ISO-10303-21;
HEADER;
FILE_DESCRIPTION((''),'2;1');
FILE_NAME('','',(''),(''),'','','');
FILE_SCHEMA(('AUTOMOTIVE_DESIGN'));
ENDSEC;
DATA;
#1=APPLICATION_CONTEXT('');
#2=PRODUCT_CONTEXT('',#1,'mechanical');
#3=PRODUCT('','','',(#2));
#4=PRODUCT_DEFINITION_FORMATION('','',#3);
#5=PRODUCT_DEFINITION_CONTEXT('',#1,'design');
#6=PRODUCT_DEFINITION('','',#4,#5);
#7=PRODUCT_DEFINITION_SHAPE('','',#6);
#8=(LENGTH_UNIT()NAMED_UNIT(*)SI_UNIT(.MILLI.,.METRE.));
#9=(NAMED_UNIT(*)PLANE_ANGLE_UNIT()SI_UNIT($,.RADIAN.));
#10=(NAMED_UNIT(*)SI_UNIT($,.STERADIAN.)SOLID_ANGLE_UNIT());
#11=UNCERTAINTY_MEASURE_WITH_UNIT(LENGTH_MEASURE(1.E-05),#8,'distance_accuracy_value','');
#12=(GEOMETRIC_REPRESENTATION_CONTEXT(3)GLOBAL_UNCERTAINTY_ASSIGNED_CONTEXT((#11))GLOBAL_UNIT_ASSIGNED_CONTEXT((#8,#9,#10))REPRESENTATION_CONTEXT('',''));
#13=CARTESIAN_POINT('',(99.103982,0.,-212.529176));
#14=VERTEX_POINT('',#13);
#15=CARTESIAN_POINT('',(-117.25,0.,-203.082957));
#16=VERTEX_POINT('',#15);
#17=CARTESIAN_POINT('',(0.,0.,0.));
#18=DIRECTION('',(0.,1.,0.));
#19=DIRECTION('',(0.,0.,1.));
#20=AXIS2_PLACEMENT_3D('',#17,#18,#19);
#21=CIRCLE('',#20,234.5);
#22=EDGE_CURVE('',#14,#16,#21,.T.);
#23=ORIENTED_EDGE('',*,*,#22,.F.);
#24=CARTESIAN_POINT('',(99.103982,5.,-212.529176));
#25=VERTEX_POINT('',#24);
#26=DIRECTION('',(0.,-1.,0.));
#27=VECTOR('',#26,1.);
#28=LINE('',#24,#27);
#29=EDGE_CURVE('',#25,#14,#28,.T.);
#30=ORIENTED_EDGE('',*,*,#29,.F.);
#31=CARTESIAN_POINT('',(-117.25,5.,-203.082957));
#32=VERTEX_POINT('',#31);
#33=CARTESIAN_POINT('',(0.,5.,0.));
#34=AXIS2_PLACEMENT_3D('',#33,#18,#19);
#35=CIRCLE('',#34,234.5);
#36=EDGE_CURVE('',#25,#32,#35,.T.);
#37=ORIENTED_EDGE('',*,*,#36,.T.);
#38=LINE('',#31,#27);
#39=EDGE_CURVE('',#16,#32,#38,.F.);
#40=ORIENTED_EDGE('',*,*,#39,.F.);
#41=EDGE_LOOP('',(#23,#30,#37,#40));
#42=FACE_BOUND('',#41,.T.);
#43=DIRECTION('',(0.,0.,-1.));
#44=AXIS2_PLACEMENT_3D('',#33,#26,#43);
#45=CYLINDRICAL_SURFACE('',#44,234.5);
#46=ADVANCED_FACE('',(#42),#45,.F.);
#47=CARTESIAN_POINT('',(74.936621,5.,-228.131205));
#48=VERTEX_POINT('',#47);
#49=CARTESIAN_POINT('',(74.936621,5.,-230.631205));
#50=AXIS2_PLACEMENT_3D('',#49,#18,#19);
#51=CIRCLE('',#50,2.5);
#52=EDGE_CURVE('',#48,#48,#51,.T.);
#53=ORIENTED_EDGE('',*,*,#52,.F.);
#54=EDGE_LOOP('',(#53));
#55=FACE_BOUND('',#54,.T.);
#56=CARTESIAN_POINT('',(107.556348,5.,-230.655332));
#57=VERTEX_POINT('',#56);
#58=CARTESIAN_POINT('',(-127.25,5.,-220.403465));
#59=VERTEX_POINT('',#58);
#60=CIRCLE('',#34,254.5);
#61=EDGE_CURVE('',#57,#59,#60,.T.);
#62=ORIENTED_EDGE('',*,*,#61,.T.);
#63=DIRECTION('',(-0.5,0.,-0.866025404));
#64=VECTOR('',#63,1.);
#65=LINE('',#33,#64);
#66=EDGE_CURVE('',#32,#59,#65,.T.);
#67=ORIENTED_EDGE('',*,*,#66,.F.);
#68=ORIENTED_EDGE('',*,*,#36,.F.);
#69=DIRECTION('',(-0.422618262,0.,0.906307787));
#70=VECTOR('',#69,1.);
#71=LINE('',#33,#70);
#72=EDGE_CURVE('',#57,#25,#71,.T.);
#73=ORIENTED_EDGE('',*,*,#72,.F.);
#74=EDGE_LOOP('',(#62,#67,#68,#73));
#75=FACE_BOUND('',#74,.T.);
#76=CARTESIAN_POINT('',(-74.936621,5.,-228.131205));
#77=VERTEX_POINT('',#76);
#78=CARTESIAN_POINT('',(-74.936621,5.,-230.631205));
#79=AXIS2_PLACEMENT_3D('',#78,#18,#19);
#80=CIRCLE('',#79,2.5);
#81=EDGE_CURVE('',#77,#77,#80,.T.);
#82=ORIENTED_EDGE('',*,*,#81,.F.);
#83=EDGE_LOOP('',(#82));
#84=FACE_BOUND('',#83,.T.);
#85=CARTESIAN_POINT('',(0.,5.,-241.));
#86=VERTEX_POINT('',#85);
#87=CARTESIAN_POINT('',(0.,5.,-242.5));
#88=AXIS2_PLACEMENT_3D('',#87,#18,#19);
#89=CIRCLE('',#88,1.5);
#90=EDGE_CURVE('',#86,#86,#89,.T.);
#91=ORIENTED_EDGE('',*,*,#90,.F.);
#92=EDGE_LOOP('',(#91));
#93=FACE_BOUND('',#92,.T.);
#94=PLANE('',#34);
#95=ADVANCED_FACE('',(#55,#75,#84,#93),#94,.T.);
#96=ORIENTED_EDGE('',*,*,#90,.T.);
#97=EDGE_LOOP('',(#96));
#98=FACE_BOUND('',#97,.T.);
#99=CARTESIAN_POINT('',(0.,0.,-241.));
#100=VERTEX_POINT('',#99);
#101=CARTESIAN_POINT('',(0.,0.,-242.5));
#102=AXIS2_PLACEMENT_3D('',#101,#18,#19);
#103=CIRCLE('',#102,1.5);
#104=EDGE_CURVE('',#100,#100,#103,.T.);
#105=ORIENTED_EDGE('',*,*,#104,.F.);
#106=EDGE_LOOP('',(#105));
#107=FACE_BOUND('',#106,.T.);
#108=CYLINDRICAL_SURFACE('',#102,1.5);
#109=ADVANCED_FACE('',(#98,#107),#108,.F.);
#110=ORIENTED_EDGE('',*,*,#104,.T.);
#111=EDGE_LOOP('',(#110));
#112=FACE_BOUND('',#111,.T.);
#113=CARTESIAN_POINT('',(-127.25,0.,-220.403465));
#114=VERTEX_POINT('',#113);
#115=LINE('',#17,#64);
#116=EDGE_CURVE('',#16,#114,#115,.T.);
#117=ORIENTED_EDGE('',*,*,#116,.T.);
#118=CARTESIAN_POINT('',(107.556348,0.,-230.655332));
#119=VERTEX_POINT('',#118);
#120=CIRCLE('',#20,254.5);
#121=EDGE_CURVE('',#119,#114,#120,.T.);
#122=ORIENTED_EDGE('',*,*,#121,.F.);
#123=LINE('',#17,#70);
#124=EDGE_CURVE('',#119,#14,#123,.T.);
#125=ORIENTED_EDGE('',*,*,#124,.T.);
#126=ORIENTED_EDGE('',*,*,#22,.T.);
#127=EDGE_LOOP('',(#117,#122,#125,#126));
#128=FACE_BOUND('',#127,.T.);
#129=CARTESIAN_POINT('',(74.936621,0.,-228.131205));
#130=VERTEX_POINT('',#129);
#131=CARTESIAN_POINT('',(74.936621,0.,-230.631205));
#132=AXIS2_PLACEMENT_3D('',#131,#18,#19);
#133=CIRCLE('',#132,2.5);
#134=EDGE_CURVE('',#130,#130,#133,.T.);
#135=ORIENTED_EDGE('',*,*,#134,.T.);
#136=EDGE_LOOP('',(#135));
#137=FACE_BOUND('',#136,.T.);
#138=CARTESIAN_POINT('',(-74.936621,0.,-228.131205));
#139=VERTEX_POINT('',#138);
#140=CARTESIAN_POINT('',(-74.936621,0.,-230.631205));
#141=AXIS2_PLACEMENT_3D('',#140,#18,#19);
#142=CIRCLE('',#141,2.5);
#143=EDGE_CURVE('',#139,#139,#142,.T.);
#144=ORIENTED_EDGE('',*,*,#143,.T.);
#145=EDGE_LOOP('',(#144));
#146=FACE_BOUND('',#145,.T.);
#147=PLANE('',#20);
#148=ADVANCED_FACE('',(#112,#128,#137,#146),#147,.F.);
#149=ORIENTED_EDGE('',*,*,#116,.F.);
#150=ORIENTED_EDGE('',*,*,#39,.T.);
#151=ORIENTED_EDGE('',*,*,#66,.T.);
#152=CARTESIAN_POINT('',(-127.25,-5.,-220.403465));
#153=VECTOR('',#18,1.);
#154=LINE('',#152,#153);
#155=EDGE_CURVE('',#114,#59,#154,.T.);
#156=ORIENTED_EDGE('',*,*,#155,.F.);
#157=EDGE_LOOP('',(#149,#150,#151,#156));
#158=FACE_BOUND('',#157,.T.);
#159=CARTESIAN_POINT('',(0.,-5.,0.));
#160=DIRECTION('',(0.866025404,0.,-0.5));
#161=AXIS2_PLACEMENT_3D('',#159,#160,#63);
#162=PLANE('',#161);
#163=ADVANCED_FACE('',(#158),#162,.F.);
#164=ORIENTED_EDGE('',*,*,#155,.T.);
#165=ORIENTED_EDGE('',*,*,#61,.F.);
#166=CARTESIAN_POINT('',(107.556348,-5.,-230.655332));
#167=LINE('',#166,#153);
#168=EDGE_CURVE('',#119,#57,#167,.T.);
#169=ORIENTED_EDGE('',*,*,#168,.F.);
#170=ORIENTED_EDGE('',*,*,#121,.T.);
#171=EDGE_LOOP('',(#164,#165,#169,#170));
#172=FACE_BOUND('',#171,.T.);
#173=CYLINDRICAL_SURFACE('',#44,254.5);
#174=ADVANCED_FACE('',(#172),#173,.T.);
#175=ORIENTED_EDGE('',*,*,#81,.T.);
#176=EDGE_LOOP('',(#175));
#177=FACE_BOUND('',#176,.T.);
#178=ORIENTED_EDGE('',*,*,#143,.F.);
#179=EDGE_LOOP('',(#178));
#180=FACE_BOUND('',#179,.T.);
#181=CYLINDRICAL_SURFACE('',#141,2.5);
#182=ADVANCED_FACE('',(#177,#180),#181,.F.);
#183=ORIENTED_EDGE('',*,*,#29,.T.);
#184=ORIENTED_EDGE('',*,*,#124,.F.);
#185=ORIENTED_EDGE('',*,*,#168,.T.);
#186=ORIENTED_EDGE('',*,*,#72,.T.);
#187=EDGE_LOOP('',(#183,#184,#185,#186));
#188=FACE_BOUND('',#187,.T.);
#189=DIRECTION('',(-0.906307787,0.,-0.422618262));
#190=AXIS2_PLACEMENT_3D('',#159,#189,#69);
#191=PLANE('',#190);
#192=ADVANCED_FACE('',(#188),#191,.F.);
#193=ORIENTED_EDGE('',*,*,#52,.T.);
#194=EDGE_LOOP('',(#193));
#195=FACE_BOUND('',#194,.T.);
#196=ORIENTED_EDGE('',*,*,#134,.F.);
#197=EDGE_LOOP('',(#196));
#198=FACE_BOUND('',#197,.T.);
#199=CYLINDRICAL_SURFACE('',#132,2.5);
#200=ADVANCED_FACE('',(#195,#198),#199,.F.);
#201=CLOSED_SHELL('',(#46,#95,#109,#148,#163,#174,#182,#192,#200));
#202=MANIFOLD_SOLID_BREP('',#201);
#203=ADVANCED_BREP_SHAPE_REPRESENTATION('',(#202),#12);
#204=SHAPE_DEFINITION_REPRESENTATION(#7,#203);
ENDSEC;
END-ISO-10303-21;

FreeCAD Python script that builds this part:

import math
import FreeCAD as App
import Part
import Sketcher
Q = App.Units.Quantity


def add_polygon(sketch, points):
    """Adds a closed chain of lines whose ends are joined by coincident constraints."""
    first, n = sketch.GeometryCount, len(points)
    for a, b in zip(points, points[1:] + points[:1]):
        sketch.addGeometry(Part.LineSegment(App.Vector(*a, 0), App.Vector(*b, 0)), False)
    for i in range(n):
        sketch.addConstraint(Sketcher.Constraint("Coincident", first + i, 2, first + (i + 1) % n, 1))

doc = App.newDocument("Part")
body = doc.addObject("PartDesign::Body", "Body")

sketch1 = doc.addObject("Sketcher::SketchObject", "Sketch")
body.addObject(sketch1)
sketch1.AttachmentSupport = (doc.XZ_Plane, [""])
sketch1.MapMode = "FlatFace"
sketch1.addGeometry([
    Part.Circle(App.Vector(0, 0, 0), App.Vector(0, 0, 1), 254.5),
    Part.Circle(App.Vector(0, 0, 0), App.Vector(0, 0, 1), 234.5),
], False)
sketch1.addConstraint([
    Sketcher.Constraint("Coincident", 0, 3, -1, 1),
    Sketcher.Constraint("Coincident", 1, 3, -1, 1),
    Sketcher.Constraint("Diameter", 0, Q("509 mm")),
    Sketcher.Constraint("Diameter", 1, Q("469 mm")),
])
pad1 = doc.addObject("PartDesign::Pad", "Pad")
body.addObject(pad1)
pad1.Profile = sketch1
pad1.Length = 5
pad1.Reversed = True

sketch2 = doc.addObject("Sketcher::SketchObject", "Sketch001")
body.addObject(sketch2)
sketch2.AttachmentSupport = (doc.XZ_Plane, [""])
sketch2.MapMode = "FlatFace"
sketch2.AttachmentOffset = App.Placement(App.Vector(0, 0, -5), App.Rotation())
add_polygon(sketch2, [(-254.5, -60), (-254.5, 0), (-226.694177, 0), (-226.694177, -60)])
sketch2.addConstraint([
    Sketcher.Constraint("Vertical", 0),
    Sketcher.Constraint("Horizontal", 1),
    Sketcher.Constraint("Vertical", 2),
    Sketcher.Constraint("Horizontal", 3),
    Sketcher.Constraint("PointOnObject", 0, 2, -1),
    Sketcher.Constraint("DistanceY", 0, 1, 0, 2, Q("60 mm")),
    Sketcher.Constraint("DistanceX", 0, 2, -1, 1, Q("254.5 mm")),
    Sketcher.Constraint("DistanceX", 1, 1, 1, 2, Q("27.805823 mm")),
])
pocket1 = doc.addObject("PartDesign::Pocket", "Pocket")
body.addObject(pocket1)
pocket1.Profile = sketch2
pocket1.Length = 5
pocket1.Reversed = True
doc.recompute()

mirrored = doc.addObject("PartDesign::Mirrored", "Mirrored")
body.addObject(mirrored)
mirrored.Originals = [pocket1]
mirrored.MirrorPlane = (doc.XY_Plane, [""])
body.Tip = mirrored

sketch3 = doc.addObject("Sketcher::SketchObject", "Sketch002")
body.addObject(sketch3)
sketch3.AttachmentSupport = (doc.XZ_Plane, [""])
sketch3.MapMode = "FlatFace"
sketch3.AttachmentOffset = App.Placement(App.Vector(0, 0, -5), App.Rotation())
sketch3.addGeometry([
    Part.Circle(App.Vector(242.5, 0, 0), App.Vector(0, 0, 1), 2.5),
    Part.Circle(App.Vector(196.186621, 142.537924, 0), App.Vector(0, 0, 1), 2.5),
    Part.Circle(App.Vector(74.936621, 230.631205, 0), App.Vector(0, 0, 1), 2.5),
    Part.Circle(App.Vector(-74.936621, 230.631205, 0), App.Vector(0, 0, 1), 2.5),
    Part.Circle(App.Vector(-196.186621, 142.537924, 0), App.Vector(0, 0, 1), 2.5),
    Part.Circle(App.Vector(-242.5, 0, 0), App.Vector(0, 0, 1), 2.5),
    Part.Circle(App.Vector(-196.186621, -142.537924, 0), App.Vector(0, 0, 1), 2.5),
    Part.Circle(App.Vector(-74.936621, -230.631205, 0), App.Vector(0, 0, 1), 2.5),
    Part.Circle(App.Vector(74.936621, -230.631205, 0), App.Vector(0, 0, 1), 2.5),
    Part.Circle(App.Vector(196.186621, -142.537924, 0), App.Vector(0, 0, 1), 2.5),
], False)
sketch3.addConstraint([
    Sketcher.Constraint("Equal", 0, 1),
    Sketcher.Constraint("Equal", 1, 2),
    Sketcher.Constraint("Equal", 2, 3),
    Sketcher.Constraint("Equal", 3, 4),
    Sketcher.Constraint("Equal", 4, 5),
    Sketcher.Constraint("Equal", 5, 6),
    Sketcher.Constraint("Equal", 6, 7),
    Sketcher.Constraint("Equal", 7, 8),
    Sketcher.Constraint("Equal", 8, 9),
    Sketcher.Constraint("Symmetric", 0, 3, 5, 3, -1, 1),
    Sketcher.Constraint("Symmetric", 1, 3, 6, 3, -1, 1),
    Sketcher.Constraint("Symmetric", 2, 3, 7, 3, -1, 1),
    Sketcher.Constraint("Symmetric", 3, 3, 8, 3, -1, 1),
    Sketcher.Constraint("Symmetric", 4, 3, 9, 3, -1, 1),
    Sketcher.Constraint("Symmetric", 2, 3, 3, 3, -2),
    Sketcher.Constraint("Symmetric", 1, 3, 4, 3, -2),
    Sketcher.Constraint("PointOnObject", 0, 3, -1),
    Sketcher.Constraint("Diameter", 0, Q("5 mm")),
    Sketcher.Constraint("DistanceX", 5, 3, 0, 3, Q("485 mm")),
    Sketcher.Constraint("DistanceX", 2, 3, 1, 3, Q("121.25 mm")),
    Sketcher.Constraint("DistanceX", -1, 1, 1, 3, Q("196.186621 mm")),
    Sketcher.Constraint("DistanceY", 1, 3, 2, 3, Q("88.093282 mm")),
    Sketcher.Constraint("DistanceY", 6, 3, 3, 3, Q("373.169129 mm")),
])
pocket2 = doc.addObject("PartDesign::Pocket", "Pocket001")
body.addObject(pocket2)
pocket2.Profile = sketch3
pocket2.Length = 5
pocket2.Reversed = True

sketch4 = doc.addObject("Sketcher::SketchObject", "Sketch003")
body.addObject(sketch4)
sketch4.AttachmentSupport = (doc.XZ_Plane, [""])
sketch4.MapMode = "FlatFace"
sketch4.AttachmentOffset = App.Placement(App.Vector(0, 0, -5), App.Rotation())
sketch4.addGeometry([
    Part.Circle(App.Vector(0, 242.5, 0), App.Vector(0, 0, 1), 1.5),
    Part.Circle(App.Vector(-142.537924, 196.186621, 0), App.Vector(0, 0, 1), 1.5),
    Part.Circle(App.Vector(-230.631205, 74.936621, 0), App.Vector(0, 0, 1), 1.5),
    Part.Circle(App.Vector(-230.631205, -74.936621, 0), App.Vector(0, 0, 1), 1.5),
    Part.Circle(App.Vector(-142.537924, -196.186621, 0), App.Vector(0, 0, 1), 1.5),
    Part.Circle(App.Vector(0, -242.5, 0), App.Vector(0, 0, 1), 1.5),
    Part.Circle(App.Vector(142.537924, -196.186621, 0), App.Vector(0, 0, 1), 1.5),
    Part.Circle(App.Vector(230.631205, -74.936621, 0), App.Vector(0, 0, 1), 1.5),
    Part.Circle(App.Vector(230.631205, 74.936621, 0), App.Vector(0, 0, 1), 1.5),
    Part.Circle(App.Vector(142.537924, 196.186621, 0), App.Vector(0, 0, 1), 1.5),
], False)
sketch4.addConstraint([
    Sketcher.Constraint("Equal", 0, 1),
    Sketcher.Constraint("Equal", 1, 2),
    Sketcher.Constraint("Equal", 2, 3),
    Sketcher.Constraint("Equal", 3, 4),
    Sketcher.Constraint("Equal", 4, 5),
    Sketcher.Constraint("Equal", 5, 6),
    Sketcher.Constraint("Equal", 6, 7),
    Sketcher.Constraint("Equal", 7, 8),
    Sketcher.Constraint("Equal", 8, 9),
    Sketcher.Constraint("Symmetric", 0, 3, 5, 3, -1, 1),
    Sketcher.Constraint("Symmetric", 1, 3, 6, 3, -1, 1),
    Sketcher.Constraint("Symmetric", 2, 3, 7, 3, -1, 1),
    Sketcher.Constraint("Symmetric", 3, 3, 8, 3, -1, 1),
    Sketcher.Constraint("Symmetric", 4, 3, 9, 3, -1, 1),
    Sketcher.Constraint("Symmetric", 4, 3, 6, 3, -2),
    Sketcher.Constraint("Symmetric", 3, 3, 7, 3, -2),
    Sketcher.Constraint("PointOnObject", 0, 3, -2),
    Sketcher.Constraint("Diameter", 0, Q("3 mm")),
    Sketcher.Constraint("DistanceY", 5, 3, 0, 3, Q("485 mm")),
    Sketcher.Constraint("DistanceY", 2, 3, 1, 3, Q("121.25 mm")),
    Sketcher.Constraint("DistanceY", -1, 1, 1, 3, Q("196.186621 mm")),
    Sketcher.Constraint("DistanceX", 2, 3, 1, 3, Q("88.093282 mm")),
    Sketcher.Constraint("DistanceX", 3, 3, 6, 3, Q("373.169129 mm")),
])
pocket3 = doc.addObject("PartDesign::Pocket", "Pocket002")
body.addObject(pocket3)
pocket3.Profile = sketch4
pocket3.Length = 5
pocket3.Reversed = True

sketch5 = doc.addObject("Sketcher::SketchObject", "Sketch004")
body.addObject(sketch5)
sketch5.AttachmentSupport = (doc.XZ_Plane, [""])
sketch5.MapMode = "FlatFace"
sketch5.AttachmentOffset = App.Placement(App.Vector(0, 0, -5), App.Rotation())
add_polygon(sketch5, [(-396.71262, 0), (-396.71262, 357.226439), (254.5, 357.226439), (254.5, 0)])
sketch5.addConstraint([
    Sketcher.Constraint("Vertical", 0),
    Sketcher.Constraint("Horizontal", 1),
    Sketcher.Constraint("Vertical", 2),
    Sketcher.Constraint("Horizontal", 3),
    Sketcher.Constraint("PointOnObject", 2, 2, -1),
    Sketcher.Constraint("DistanceX", -1, 1, 1, 2, Q("254.5 mm")),
    Sketcher.Constraint("DistanceX", 1, 1, 1, 2, Q("651.21262 mm")),
    Sketcher.Constraint("DistanceY", 0, 1, 0, 2, Q("357.226439 mm")),
])
pocket4 = doc.addObject("PartDesign::Pocket", "Pocket003")
body.addObject(pocket4)
pocket4.Profile = sketch5
pocket4.Length = 10
pocket4.Reversed = True

sketch6 = doc.addObject("Sketcher::SketchObject", "Sketch005")
body.addObject(sketch6)
sketch6.AttachmentSupport = (doc.XZ_Plane, [""])
sketch6.MapMode = "FlatFace"
sketch6.AttachmentOffset = App.Placement(App.Vector(0, 0, 5), App.Rotation())
sketch6.addGeometry([
    Part.LineSegment(App.Vector(-117.25, -203.082957, 0), App.Vector(-127.25, -220.403465, 0)),
    Part.ArcOfCircle(Part.Circle(App.Vector(0, 0, 0), App.Vector(0, 0, 1), 254.5), math.radians(-166.363787), math.radians(-120)),
    Part.ArcOfCircle(Part.Circle(App.Vector(0, 0, 0), App.Vector(0, 0, 1), 254.5), math.radians(-180), math.radians(-166.363787)),
    Part.LineSegment(App.Vector(-254.5, 0, 0), App.Vector(0, 0, 0)),
    Part.LineSegment(App.Vector(0, 0, 0), App.Vector(-117.25, -203.082957, 0)),
    Part.Circle(App.Vector(-230.631205, -74.936621, 0), App.Vector(0, 0, 1), 1.5),
    Part.Circle(App.Vector(-196.186621, -142.537924, 0), App.Vector(0, 0, 1), 2.5),
    Part.Circle(App.Vector(-142.537924, -196.186621, 0), App.Vector(0, 0, 1), 1.5),
], False)
sketch6.addConstraint([
    Sketcher.Constraint("Coincident", 0, 2, 1, 2),
    Sketcher.Constraint("Tangent", 1, 1, 2, 2),
    Sketcher.Constraint("Coincident", 2, 1, 3, 1),
    Sketcher.Constraint("Coincident", 3, 2, 4, 1),
    Sketcher.Constraint("Coincident", 4, 2, 0, 1),
    Sketcher.Constraint("Horizontal", 3),
    Sketcher.Constraint("Coincident", 1, 3, -1, 1),
    Sketcher.Constraint("Coincident", 3, 2, -1, 1),
    Sketcher.Constraint("Equal", 1, 2),
    Sketcher.Constraint("Equal", 5, 7),
    Sketcher.Constraint("Parallel", 0, 4),
    Sketcher.Constraint("Diameter", 5, Q("3 mm")),
    Sketcher.Constraint("Diameter", 6, Q("5 mm")),
    Sketcher.Constraint("Radius", 1, Q("254.5 mm")),
    Sketcher.Constraint("Angle", 0, Q("-120 deg")),
    Sketcher.Constraint("Distance", 0, Q("20 mm")),
    Sketcher.Constraint("DistanceY", 1, 1, -1, 1, Q("60 mm")),
    Sketcher.Constraint("DistanceY", 7, 3, 5, 3, Q("121.25 mm")),
    Sketcher.Constraint("DistanceY", 5, 3, -1, 1, Q("74.936621 mm")),
    Sketcher.Constraint("DistanceX", 6, 3, -1, 1, Q("196.186621 mm")),
    Sketcher.Constraint("DistanceX", 5, 3, 7, 3, Q("88.093282 mm")),
    Sketcher.Constraint("DistanceY", 0, 2, 6, 3, Q("77.865542 mm")),
    Sketcher.Constraint("DistanceX", 5, 3, -1, 1, Q("230.631205 mm")),
])
pocket5 = doc.addObject("PartDesign::Pocket", "Pocket004")
body.addObject(pocket5)
pocket5.Profile = sketch6
pocket5.Length = 10

sketch7 = doc.addObject("Sketcher::SketchObject", "Sketch006")
body.addObject(sketch7)
sketch7.AttachmentSupport = (doc.XZ_Plane, [""])
sketch7.MapMode = "FlatFace"
sketch7.AttachmentOffset = App.Placement(App.Vector(0, 0, 5), App.Rotation())
sketch7.addGeometry([
    Part.LineSegment(App.Vector(0, 0, 0), App.Vector(254.5, 0, 0)),
    Part.ArcOfCircle(Part.Circle(App.Vector(0, 0, 0), App.Vector(0, 0, 1), 254.5), math.radians(-65), math.radians(0)),
    Part.LineSegment(App.Vector(107.556348, -230.655332, 0), App.Vector(0, 0, 0)),
], False)
sketch7.addConstraint([
    Sketcher.Constraint("Coincident", 0, 2, 1, 2),
    Sketcher.Constraint("Coincident", 1, 1, 2, 1),
    Sketcher.Constraint("Coincident", 2, 2, 0, 1),
    Sketcher.Constraint("Horizontal", 0),
    Sketcher.Constraint("Coincident", 1, 3, -1, 1),
    Sketcher.Constraint("Coincident", 2, 2, -1, 1),
    Sketcher.Constraint("Radius", 1, Q("254.5 mm")),
    Sketcher.Constraint("Angle", 2, Q("115 deg")),
])
pocket6 = doc.addObject("PartDesign::Pocket", "Pocket005")
body.addObject(pocket6)
pocket6.Profile = sketch7
pocket6.Length = 10

doc.recompute()
